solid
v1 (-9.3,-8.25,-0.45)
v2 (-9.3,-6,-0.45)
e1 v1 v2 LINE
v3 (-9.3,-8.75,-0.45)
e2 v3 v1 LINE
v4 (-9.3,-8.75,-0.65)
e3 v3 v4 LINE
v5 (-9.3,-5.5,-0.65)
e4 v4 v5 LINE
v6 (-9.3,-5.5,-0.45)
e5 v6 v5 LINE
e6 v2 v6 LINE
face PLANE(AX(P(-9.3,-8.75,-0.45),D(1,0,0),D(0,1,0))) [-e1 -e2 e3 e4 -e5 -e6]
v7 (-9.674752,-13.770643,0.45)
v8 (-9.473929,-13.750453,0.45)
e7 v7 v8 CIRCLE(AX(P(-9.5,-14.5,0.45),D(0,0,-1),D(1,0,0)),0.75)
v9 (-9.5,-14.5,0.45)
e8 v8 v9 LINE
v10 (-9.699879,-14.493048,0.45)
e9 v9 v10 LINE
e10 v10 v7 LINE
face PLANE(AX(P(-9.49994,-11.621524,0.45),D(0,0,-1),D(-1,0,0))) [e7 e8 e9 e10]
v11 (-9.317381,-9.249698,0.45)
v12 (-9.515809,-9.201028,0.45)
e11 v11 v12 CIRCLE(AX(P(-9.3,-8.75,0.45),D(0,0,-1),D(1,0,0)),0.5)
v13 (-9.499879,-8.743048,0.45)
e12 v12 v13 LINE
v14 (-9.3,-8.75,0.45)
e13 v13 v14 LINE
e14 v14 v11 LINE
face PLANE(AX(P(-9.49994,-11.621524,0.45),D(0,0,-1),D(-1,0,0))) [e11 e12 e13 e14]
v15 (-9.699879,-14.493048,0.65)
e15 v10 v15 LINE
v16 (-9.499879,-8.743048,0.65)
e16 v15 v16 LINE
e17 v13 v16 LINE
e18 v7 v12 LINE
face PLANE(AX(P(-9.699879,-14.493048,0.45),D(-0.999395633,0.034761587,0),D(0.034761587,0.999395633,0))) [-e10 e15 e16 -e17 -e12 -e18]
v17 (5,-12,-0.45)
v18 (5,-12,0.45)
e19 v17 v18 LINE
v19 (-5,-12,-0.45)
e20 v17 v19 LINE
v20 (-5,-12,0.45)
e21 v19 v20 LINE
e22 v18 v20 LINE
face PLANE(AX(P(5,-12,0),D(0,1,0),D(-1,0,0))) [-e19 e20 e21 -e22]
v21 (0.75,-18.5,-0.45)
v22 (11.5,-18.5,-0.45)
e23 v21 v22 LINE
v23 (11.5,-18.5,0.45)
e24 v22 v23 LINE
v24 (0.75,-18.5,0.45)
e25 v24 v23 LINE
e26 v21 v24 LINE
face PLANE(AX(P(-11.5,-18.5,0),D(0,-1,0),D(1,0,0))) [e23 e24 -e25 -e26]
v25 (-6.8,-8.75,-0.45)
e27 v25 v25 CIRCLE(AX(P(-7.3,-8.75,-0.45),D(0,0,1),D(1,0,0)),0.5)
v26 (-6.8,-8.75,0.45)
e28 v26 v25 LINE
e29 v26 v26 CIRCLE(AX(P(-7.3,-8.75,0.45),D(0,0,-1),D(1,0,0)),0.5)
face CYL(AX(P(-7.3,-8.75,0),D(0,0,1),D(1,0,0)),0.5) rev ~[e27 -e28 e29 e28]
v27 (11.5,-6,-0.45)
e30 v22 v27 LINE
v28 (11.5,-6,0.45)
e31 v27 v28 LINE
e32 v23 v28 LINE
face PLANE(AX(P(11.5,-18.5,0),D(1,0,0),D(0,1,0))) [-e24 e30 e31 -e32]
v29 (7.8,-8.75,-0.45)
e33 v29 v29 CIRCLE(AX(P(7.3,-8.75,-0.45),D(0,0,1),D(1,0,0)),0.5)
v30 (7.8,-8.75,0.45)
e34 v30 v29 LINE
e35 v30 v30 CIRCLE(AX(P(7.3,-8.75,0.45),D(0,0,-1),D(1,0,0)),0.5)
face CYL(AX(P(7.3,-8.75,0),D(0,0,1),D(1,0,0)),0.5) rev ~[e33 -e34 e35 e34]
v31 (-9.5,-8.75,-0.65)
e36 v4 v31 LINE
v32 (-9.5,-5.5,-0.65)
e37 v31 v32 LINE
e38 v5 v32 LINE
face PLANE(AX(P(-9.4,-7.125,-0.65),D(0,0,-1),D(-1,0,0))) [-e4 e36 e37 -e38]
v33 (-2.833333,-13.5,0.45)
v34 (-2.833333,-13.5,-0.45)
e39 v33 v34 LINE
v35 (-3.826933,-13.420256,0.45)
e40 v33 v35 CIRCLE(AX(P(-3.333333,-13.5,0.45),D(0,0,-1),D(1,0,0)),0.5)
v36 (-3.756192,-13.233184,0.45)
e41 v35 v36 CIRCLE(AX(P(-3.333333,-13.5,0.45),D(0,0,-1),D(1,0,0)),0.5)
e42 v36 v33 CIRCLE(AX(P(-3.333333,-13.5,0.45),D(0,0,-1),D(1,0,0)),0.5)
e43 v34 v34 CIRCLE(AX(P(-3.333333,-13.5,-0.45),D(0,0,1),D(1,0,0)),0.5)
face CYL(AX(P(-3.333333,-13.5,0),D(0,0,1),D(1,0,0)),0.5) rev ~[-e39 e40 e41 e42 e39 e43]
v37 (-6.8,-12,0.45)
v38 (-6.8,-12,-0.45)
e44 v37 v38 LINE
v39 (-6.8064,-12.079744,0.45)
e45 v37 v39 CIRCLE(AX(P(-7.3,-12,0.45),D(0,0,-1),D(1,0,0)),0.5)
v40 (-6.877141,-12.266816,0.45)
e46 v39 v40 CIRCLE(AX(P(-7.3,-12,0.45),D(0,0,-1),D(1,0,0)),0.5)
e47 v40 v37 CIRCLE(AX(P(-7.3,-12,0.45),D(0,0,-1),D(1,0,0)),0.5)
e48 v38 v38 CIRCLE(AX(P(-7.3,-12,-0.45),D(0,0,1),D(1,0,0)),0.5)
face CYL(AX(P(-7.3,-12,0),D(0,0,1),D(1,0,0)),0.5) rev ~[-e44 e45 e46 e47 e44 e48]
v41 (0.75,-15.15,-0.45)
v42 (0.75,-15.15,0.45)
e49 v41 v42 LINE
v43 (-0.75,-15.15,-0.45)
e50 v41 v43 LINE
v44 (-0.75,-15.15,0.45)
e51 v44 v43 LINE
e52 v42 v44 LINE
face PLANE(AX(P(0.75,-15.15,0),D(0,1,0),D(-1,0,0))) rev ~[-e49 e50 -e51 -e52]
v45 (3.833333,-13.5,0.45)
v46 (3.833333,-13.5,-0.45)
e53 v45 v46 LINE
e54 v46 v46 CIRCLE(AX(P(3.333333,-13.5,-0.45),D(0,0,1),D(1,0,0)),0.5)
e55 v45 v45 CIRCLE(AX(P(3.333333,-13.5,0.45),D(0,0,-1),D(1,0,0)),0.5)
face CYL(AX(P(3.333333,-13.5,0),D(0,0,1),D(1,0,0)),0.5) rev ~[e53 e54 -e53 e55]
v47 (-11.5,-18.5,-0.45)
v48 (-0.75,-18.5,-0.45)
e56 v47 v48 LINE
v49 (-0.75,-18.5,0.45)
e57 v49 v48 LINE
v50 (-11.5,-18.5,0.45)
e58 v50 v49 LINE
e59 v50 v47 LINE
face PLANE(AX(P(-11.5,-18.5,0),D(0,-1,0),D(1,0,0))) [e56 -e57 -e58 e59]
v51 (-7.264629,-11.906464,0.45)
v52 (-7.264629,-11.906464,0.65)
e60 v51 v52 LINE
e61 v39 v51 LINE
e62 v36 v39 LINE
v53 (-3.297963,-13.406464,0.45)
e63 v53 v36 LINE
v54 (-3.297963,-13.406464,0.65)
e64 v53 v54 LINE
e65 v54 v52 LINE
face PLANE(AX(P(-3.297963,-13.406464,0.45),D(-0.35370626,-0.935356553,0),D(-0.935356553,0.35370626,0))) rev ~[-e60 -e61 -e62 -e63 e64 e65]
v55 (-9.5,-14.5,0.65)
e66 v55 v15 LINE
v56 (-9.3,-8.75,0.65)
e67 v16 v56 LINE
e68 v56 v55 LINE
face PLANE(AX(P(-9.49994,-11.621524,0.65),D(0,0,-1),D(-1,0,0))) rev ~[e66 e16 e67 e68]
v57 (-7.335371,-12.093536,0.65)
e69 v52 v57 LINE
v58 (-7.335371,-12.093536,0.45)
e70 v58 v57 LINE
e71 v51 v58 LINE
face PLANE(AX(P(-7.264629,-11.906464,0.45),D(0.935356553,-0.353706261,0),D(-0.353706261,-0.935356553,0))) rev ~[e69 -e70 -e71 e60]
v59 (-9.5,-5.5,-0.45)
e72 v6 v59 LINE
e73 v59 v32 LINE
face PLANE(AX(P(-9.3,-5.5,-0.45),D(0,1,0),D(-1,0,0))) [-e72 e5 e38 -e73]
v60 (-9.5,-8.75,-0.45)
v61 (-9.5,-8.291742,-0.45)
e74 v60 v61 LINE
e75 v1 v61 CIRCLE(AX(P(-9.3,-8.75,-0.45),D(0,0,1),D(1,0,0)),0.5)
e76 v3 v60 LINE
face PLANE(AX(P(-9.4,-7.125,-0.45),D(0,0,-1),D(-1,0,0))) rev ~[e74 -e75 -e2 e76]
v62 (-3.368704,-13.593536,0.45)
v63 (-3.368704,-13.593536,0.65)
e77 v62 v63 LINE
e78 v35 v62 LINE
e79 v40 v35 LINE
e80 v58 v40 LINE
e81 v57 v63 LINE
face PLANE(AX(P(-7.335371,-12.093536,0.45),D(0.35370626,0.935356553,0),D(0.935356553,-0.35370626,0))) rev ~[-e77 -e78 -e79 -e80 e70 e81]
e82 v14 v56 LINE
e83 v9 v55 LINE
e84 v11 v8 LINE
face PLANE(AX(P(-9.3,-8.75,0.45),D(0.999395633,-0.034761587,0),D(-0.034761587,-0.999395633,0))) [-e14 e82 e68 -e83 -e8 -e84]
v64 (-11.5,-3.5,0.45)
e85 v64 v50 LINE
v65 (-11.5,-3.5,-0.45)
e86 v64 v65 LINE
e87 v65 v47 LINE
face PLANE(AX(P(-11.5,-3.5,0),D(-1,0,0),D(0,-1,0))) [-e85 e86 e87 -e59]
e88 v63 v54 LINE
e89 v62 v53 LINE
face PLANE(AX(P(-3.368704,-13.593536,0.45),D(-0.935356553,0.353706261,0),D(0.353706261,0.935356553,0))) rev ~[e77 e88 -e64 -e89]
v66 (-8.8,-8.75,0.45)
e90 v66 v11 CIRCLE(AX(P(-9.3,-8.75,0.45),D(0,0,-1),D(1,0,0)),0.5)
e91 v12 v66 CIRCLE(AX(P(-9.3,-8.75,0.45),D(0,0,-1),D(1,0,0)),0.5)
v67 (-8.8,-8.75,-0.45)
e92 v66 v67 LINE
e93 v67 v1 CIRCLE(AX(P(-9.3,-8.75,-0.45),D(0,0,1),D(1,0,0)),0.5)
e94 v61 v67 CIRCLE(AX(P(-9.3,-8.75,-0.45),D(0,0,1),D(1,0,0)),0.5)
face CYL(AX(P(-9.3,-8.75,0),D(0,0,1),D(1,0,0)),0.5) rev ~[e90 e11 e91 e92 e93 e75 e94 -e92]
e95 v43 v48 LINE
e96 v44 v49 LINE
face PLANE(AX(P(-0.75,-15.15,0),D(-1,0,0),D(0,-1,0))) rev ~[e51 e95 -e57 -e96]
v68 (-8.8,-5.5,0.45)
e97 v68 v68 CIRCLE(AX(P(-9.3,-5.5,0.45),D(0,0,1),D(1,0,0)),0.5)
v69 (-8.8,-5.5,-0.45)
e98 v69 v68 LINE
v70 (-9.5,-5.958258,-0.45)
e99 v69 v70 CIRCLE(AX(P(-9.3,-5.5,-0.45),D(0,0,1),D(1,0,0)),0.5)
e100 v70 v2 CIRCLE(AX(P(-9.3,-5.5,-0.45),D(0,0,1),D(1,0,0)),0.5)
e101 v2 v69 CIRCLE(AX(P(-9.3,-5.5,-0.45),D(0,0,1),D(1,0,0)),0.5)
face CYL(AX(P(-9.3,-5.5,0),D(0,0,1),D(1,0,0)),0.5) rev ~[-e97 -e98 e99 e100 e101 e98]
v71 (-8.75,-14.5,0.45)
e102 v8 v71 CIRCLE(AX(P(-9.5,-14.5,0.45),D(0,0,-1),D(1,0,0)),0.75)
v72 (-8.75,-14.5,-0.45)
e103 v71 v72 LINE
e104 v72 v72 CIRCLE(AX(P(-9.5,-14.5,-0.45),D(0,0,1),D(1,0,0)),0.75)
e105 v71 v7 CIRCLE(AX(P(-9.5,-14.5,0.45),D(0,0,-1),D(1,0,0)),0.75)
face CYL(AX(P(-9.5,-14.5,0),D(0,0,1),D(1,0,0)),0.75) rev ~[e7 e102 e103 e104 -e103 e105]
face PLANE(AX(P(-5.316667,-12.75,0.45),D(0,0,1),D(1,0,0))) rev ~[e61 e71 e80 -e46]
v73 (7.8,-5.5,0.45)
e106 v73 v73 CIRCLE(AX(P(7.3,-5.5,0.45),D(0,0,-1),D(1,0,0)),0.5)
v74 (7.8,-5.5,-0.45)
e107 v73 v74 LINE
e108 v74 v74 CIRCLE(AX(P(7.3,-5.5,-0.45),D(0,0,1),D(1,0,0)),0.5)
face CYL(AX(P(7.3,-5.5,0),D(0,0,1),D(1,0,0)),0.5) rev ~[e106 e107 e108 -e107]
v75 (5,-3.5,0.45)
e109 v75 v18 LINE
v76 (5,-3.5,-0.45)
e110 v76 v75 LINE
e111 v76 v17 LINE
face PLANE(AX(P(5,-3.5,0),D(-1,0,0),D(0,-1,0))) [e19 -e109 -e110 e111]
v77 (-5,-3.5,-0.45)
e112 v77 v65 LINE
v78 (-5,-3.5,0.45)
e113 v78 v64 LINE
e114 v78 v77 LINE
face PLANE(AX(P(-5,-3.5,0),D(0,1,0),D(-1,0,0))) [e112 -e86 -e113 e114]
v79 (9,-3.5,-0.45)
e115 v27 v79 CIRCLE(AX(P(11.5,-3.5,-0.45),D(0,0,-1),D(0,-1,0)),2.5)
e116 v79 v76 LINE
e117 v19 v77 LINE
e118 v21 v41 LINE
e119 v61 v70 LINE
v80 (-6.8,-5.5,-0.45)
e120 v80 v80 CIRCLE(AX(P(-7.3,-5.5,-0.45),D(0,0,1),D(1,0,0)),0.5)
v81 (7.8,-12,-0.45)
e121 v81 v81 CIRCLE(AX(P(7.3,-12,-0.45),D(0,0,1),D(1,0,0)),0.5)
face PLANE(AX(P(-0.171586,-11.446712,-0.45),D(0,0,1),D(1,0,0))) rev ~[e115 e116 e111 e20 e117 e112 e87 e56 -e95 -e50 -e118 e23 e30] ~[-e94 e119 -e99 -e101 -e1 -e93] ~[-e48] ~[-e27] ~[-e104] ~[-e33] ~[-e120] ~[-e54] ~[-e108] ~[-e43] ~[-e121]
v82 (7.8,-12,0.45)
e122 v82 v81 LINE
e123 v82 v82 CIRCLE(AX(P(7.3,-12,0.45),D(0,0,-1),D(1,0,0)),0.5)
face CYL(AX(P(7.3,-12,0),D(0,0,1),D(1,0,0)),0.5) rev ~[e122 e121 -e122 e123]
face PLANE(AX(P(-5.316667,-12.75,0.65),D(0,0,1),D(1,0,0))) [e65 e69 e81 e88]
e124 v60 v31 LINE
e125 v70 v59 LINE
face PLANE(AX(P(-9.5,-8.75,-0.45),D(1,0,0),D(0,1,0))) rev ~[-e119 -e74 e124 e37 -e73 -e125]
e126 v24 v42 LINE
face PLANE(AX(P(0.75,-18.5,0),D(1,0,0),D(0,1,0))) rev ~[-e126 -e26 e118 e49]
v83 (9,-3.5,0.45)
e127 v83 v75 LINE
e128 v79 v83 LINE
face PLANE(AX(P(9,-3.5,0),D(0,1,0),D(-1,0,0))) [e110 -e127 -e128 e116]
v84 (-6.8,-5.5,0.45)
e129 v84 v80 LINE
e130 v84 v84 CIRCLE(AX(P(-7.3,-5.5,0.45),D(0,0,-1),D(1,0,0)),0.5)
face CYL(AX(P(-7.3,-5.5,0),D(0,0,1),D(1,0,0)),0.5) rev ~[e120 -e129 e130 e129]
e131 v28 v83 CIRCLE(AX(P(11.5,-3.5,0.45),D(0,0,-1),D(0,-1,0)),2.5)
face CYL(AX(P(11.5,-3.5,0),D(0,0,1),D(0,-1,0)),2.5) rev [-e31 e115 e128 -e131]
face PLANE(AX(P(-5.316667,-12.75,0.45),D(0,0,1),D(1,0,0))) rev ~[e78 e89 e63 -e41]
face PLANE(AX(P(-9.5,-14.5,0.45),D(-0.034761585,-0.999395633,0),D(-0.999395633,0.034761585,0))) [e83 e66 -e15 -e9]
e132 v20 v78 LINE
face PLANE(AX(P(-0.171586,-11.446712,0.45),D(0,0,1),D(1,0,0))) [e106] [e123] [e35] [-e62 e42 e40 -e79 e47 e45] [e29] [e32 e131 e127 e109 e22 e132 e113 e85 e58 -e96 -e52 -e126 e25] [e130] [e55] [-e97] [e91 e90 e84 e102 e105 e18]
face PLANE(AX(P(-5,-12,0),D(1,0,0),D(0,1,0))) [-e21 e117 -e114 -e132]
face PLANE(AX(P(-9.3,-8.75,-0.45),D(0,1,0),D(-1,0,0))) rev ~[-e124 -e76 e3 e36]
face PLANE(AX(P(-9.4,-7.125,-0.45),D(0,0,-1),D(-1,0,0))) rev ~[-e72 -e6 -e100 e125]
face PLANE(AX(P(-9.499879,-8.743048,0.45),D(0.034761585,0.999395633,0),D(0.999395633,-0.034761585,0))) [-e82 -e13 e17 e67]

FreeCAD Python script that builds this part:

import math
import FreeCAD as App
import Part
import Sketcher
from FreeCAD import Vector
Q = App.Units.Quantity


def add_polygon(sketch, points):
    """Adds a closed chain of lines whose ends are joined by coincident constraints."""
    first, n = sketch.GeometryCount, len(points)
    for a, b in zip(points, points[1:] + points[:1]):
        sketch.addGeometry(Part.LineSegment(App.Vector(*a, 0), App.Vector(*b, 0)), False)
    for i in range(n):
        sketch.addConstraint(Sketcher.Constraint("Coincident", first + i, 2, first + (i + 1) % n, 1))

doc = App.newDocument("Part")
body = doc.addObject("PartDesign::Body", "Body")

# Sketch on XY plane
sketch1 = body.newObject("Sketcher::SketchObject", "Sketch")
sketch1.AttachmentSupport = (doc.getObject("XY_Plane"), [""])
sketch1.MapMode = "FlatFace"
sketch1.addGeometry([
    Part.LineSegment(Vector(-11.5, -18.5, 0), Vector(11.5, -18.5, 0)),  # 0
    Part.LineSegment(Vector(11.5, -18.5, 0), Vector(11.5, -6, 0)),  # 1
    Part.ArcOfCircle(Part.Circle(Vector(11.5, -3.5, 0), Vector(0, 0, 1), 2.5), math.radians(180), math.radians(270)),  # 2
    Part.LineSegment(Vector(9, -3.5, 0), Vector(5, -3.5, 0)),  # 3
    Part.LineSegment(Vector(5, -3.5, 0), Vector(5, -12, 0)),  # 4
    Part.LineSegment(Vector(5, -12, 0), Vector(-5, -12, 0)),  # 5
    Part.LineSegment(Vector(-5, -12, 0), Vector(-5, -3.5, 0)),  # 6
    Part.LineSegment(Vector(-5, -3.5, 0), Vector(-11.5, -3.5, 0)),  # 7
    Part.LineSegment(Vector(-11.5, -3.5, 0), Vector(-11.5, -18.5, 0)),  # 8
], False)
sketch1.addConstraint([
    Sketcher.Constraint("Coincident", 0, 2, 1, 1),
    Sketcher.Constraint("Coincident", 1, 2, 2, 2),
    Sketcher.Constraint("Coincident", 2, 1, 3, 1),
    Sketcher.Constraint("Coincident", 3, 2, 4, 1),
    Sketcher.Constraint("Coincident", 4, 2, 5, 1),
    Sketcher.Constraint("Coincident", 5, 2, 6, 1),
    Sketcher.Constraint("Coincident", 6, 2, 7, 1),
    Sketcher.Constraint("Coincident", 7, 2, 8, 1),
    Sketcher.Constraint("Coincident", 8, 2, 0, 1),
    Sketcher.Constraint("Horizontal", 0),
    Sketcher.Constraint("Vertical", 1),
    Sketcher.Constraint("Horizontal", 3),
    Sketcher.Constraint("Vertical", 4),
    Sketcher.Constraint("Horizontal", 5),
    Sketcher.Constraint("Vertical", 6),
    Sketcher.Constraint("Horizontal", 7),
    Sketcher.Constraint("Vertical", 8),
    Sketcher.Constraint("Symmetric", 3, 2, 6, 2, -2),
    Sketcher.Constraint("Vertical", 2, 3, 0, 2),
    Sketcher.Constraint("Radius", 2, Q("2.5 mm")),
    Sketcher.Constraint("DistanceX", 0, 1, 0, 2, Q("23 mm")),
    Sketcher.Constraint("DistanceX", 3, 2, 3, 1, Q("4 mm")),
    Sketcher.Constraint("DistanceX", 5, 2, 5, 1, Q("10 mm")),
    Sketcher.Constraint("DistanceY", 8, 2, 8, 1, Q("15 mm")),
    Sketcher.Constraint("DistanceY", 1, 1, 1, 2, Q("12.5 mm")),
    Sketcher.Constraint("DistanceY", 4, 2, 4, 1, Q("8.5 mm")),
    Sketcher.Constraint("DistanceY", 1, 2, -1, 1, Q("6 mm")),
])
pad1 = body.newObject("PartDesign::Pad", "Pad")
pad1.Profile = sketch1
pad1.Length = 0.9
pad1.Midplane = True

# Sketch on XY plane
sketch2 = body.newObject("Sketcher::SketchObject", "Sketch001")
sketch2.AttachmentSupport = (doc.getObject("XY_Plane"), [""])
sketch2.MapMode = "FlatFace"
add_polygon(sketch2, [(-0.8, -18.5), (0.8, -18.5), (0.8, -15.2), (-0.8, -15.2)])  # lines 0-3
sketch2.addConstraint([
    Sketcher.Constraint("Horizontal", 0),
    Sketcher.Constraint("Vertical", 1),
    Sketcher.Constraint("Horizontal", 2),
    Sketcher.Constraint("Vertical", 3),
    Sketcher.Constraint("DistanceX", 0, 1, 0, 2, Q("1.5 mm")),
    Sketcher.Constraint("DistanceY", 1, 1, 1, 2, Q("3.35 mm")),
    Sketcher.Constraint("DistanceY", 0, 2, -1, 1, Q("18.5 mm")),
    Sketcher.Constraint("DistanceX", -1, 1, 0, 2, Q("0.75 mm")),
])
pocket1 = body.newObject("PartDesign::Pocket", "Pocket")
pocket1.Profile = sketch2
pocket1.Length = 10
pocket1.Midplane = True

# Sketch on XY plane
sketch3 = body.newObject("Sketcher::SketchObject", "Sketch002")
sketch3.AttachmentSupport = (doc.getObject("XY_Plane"), [""])
sketch3.MapMode = "FlatFace"
sketch3.addGeometry([
    Part.Circle(Vector(3.3, -13.5, 0), Vector(0, 0, 1), 0.5),  # 0
    Part.Circle(Vector(-7.3, -8.8, 0), Vector(0, 0, 1), 0.5),  # 1
    Part.Circle(Vector(-7.3, -5.5, 0), Vector(0, 0, 1), 0.5),  # 2
    Part.Circle(Vector(7.3, -8.8, 0), Vector(0, 0, 1), 0.5),  # 3
    Part.Circle(Vector(7.3, -5.5, 0), Vector(0, 0, 1), 0.5),  # 4
    Part.Circle(Vector(-3.3, -13.5, 0), Vector(0, 0, 1), 0.5),  # 5
    Part.Circle(Vector(-7.3, -12, 0), Vector(0, 0, 1), 0.5),  # 6
    Part.Circle(Vector(7.3, -12, 0), Vector(0, 0, 1), 0.5),  # 7
    Part.Circle(Vector(-9.5, -14.5, 0), Vector(0, 0, 1), 0.8),  # 8
    Part.Circle(Vector(-9.3, -8.8, 0), Vector(0, 0, 1), 0.5),  # 9
    Part.Circle(Vector(-9.3, -5.5, 0), Vector(0, 0, 1), 0.5),  # 10
], False)
sketch3.addConstraint([
    Sketcher.Constraint("Equal", 0, 1),
    Sketcher.Constraint("Equal", 1, 2),
    Sketcher.Constraint("Equal", 2, 3),
    Sketcher.Constraint("Equal", 3, 4),
    Sketcher.Constraint("Equal", 4, 5),
    Sketcher.Constraint("Equal", 5, 6),
    Sketcher.Constraint("Equal", 6, 7),
    Sketcher.Constraint("Equal", 7, 9),
    Sketcher.Constraint("Equal", 9, 10),
    Sketcher.Constraint("Symmetric", 1, 3, 3, 3, -2),
    Sketcher.Constraint("Symmetric", 2, 3, 4, 3, -2),
    Sketcher.Constraint("Symmetric", 0, 3, 5, 3, -2),
    Sketcher.Constraint("Symmetric", 6, 3, 7, 3, -2),
    Sketcher.Constraint("Horizontal", 3, 3, 9, 3),
    Sketcher.Constraint("Horizontal", 4, 3, 10, 3),
    Sketcher.Constraint("Vertical", 1, 3, 2, 3),
    Sketcher.Constraint("Vertical", 2, 3, 6, 3),
    Sketcher.Constraint("Vertical", 9, 3, 10, 3),
    Sketcher.Constraint("Diameter", 0, Q("1 mm")),
    Sketcher.Constraint("Diameter", 8, Q("1.5 mm")),
    Sketcher.Constraint("DistanceY", 6, 3, -1, 1, Q("12 mm")),
    Sketcher.Constraint("DistanceY", 0, 3, 2, 3, Q("8 mm")),
    Sketcher.Constraint("DistanceY", 8, 3, 5, 3, Q("1 mm")),
    Sketcher.Constraint("DistanceX", 9, 3, 1, 3, Q("2 mm")),
    Sketcher.Constraint("DistanceY", 0, 3, -1, 1, Q("13.5 mm")),
    Sketcher.Constraint("DistanceX", 1, 3, -1, 1, Q("7.3 mm")),
    Sketcher.Constraint("DistanceX", 8, 3, -1, 1, Q("9.5 mm")),
    Sketcher.Constraint("DistanceY", 1, 3, -1, 1, Q("8.75 mm")),
    Sketcher.Constraint("DistanceX", -1, 1, 0, 3, Q("3.333333 mm")),
])
pocket2 = body.newObject("PartDesign::Pocket", "Pocket001")
pocket2.Profile = sketch3
pocket2.Length = 20.2
pocket2.Midplane = True

# Sketch on XY plane
sketch4 = body.newObject("Sketcher::SketchObject", "Sketch003")
sketch4.AttachmentSupport = (doc.getObject("XY_Plane"), [""])
sketch4.MapMode = "FlatFace"
sketch4.AttachmentOffset = App.Placement(Vector(0, 0, 0.45), App.Rotation())
add_polygon(sketch4, [(-7.335371, -12.093536), (-3.368704, -13.593536), (-3.297963, -13.406464), (-7.264629, -11.906464)])  # lines 0-3
sketch4.addConstraint([
    Sketcher.Constraint("Distance", 1, Q("0.2 mm")),
    Sketcher.Constraint("Distance", 3, Q("0.2 mm")),
    Sketcher.Constraint("DistanceY", 1, 2, 2, 2, Q("1.5 mm")),
    Sketcher.Constraint("DistanceY", 0, 2, 3, 2, Q("1.5 mm")),
    Sketcher.Constraint("DistanceX", 2, 2, -1, 1, Q("7.264629 mm")),
    Sketcher.Constraint("DistanceX", 3, 2, -1, 1, Q("7.335371 mm")),
    Sketcher.Constraint("Distance", 0, Q("4.240807 mm")),
    Sketcher.Constraint("DistanceY", 0, 2, -1, 1, Q("13.593536 mm")),
])
pad2 = body.newObject("PartDesign::Pad", "Pad001")
pad2.Profile = sketch4
pad2.Length = 0.2

# Sketch on XY plane
sketch5 = body.newObject("Sketcher::SketchObject", "Sketch004")
sketch5.AttachmentSupport = (doc.getObject("XY_Plane"), [""])
sketch5.MapMode = "FlatFace"
sketch5.AttachmentOffset = App.Placement(Vector(0, 0, -0.45), App.Rotation())
add_polygon(sketch5, [(-9.3, -5.5), (-9.3, -8.75), (-9.5, -8.75), (-9.5, -5.5)])  # lines 0-3
sketch5.addConstraint([
    Sketcher.Constraint("Vertical", 0),
    Sketcher.Constraint("Horizontal", 1),
    Sketcher.Constraint("Vertical", 2),
    Sketcher.Constraint("Horizontal", 3),
    Sketcher.Constraint("DistanceX", 1, 2, 1, 1, Q("0.2 mm")),
    Sketcher.Constraint("DistanceY", 0, 2, 0, 1, Q("3.25 mm")),
    Sketcher.Constraint("DistanceX", 0, 2, -1, 1, Q("9.3 mm")),
    Sketcher.Constraint("DistanceY", 2, 2, -1, 1, Q("5.5 mm")),
])
pad3 = body.newObject("PartDesign::Pad", "Pad002")
pad3.Profile = sketch5
pad3.Length = 0.2
pad3.Reversed = True

# Sketch on XY plane
sketch6 = body.newObject("Sketcher::SketchObject", "Sketch005")
sketch6.AttachmentSupport = (doc.getObject("XY_Plane"), [""])
sketch6.MapMode = "FlatFace"
sketch6.AttachmentOffset = App.Placement(Vector(0, 0, 0.45), App.Rotation())
add_polygon(sketch6, [(-9.5, -14.5), (-9.3, -8.75), (-9.5, -8.74), (-9.7, -14.49)])  # lines 0-3
sketch6.addConstraint([
    Sketcher.Constraint("Perpendicular", 0, 1),
    Sketcher.Constraint("Perpendicular", 1, 2),
    Sketcher.Constraint("Perpendicular", 2, 3),
    Sketcher.Constraint("Distance", 1, Q("0.2 mm")),
    Sketcher.Constraint("DistanceX", 0, 2, -1, 1, Q("9.3 mm")),
    Sketcher.Constraint("DistanceX", 3, 2, -1, 1, Q("9.5 mm")),
    Sketcher.Constraint("DistanceY", 3, 2, -1, 1, Q("14.5 mm")),
    Sketcher.Constraint("DistanceY", 0, 2, -1, 1, Q("8.75 mm")),
])
pad4 = body.newObject("PartDesign::Pad", "Pad003")
pad4.Profile = sketch6
pad4.Length = 0.2

doc.recompute()
